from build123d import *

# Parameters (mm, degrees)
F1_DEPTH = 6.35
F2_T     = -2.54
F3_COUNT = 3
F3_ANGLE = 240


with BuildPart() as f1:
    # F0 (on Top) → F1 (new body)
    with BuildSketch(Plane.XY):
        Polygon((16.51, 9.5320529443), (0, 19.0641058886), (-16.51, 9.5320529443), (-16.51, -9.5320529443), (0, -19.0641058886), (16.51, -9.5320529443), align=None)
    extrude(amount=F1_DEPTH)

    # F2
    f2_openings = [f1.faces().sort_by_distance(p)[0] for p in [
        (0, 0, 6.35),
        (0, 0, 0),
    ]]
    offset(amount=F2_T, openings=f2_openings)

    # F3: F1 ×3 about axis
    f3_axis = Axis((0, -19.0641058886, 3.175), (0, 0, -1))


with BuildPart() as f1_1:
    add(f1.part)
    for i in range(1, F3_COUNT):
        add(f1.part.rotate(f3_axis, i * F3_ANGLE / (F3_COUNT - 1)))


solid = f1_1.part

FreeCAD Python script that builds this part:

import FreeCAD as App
import Part
import Sketcher
from FreeCAD import Vector
Q = App.Units.Quantity


def faces_at(feature, points):
    """Names of the faces that lie closest to the given points."""
    faces = feature.Shape.Faces
    near = lambda p: min(range(len(faces)), key=lambda i: faces[i].distToShape(Part.Vertex(*p))[0])
    return sorted({f"Face{near(p) + 1}" for p in points})


def add_polygon(sketch, points):
    """Adds a closed chain of lines whose ends are joined by coincident constraints."""
    first, n = sketch.GeometryCount, len(points)
    for a, b in zip(points, points[1:] + points[:1]):
        sketch.addGeometry(Part.LineSegment(App.Vector(*a, 0), App.Vector(*b, 0)), False)
    for i in range(n):
        sketch.addConstraint(Sketcher.Constraint("Coincident", first + i, 2, first + (i + 1) % n, 1))

doc = App.newDocument("Part")
body = doc.addObject("PartDesign::Body", "Body")

# Sketch on XY plane
sketch1 = doc.addObject("Sketcher::SketchObject", "Sketch")
body.addObject(sketch1)
sketch1.AttachmentSupport = (doc.XY_Plane, [""])
sketch1.MapMode = "FlatFace"
add_polygon(sketch1, [(17, 10), (0, 19), (-17, 10), (-17, -10), (0, -19), (17, -10)])  # lines 0-5
sketch1.addConstraint([
    Sketcher.Constraint("Vertical", 2),
    Sketcher.Constraint("Vertical", 5),
    Sketcher.Constraint("Symmetric", 0, 2, 3, 2, -1, 1),
    Sketcher.Constraint("Symmetric", 1, 2, 4, 2, -1, 1),
    Sketcher.Constraint("PointOnObject", 0, 2, -2),
    Sketcher.Constraint("Parallel", 0, 3),
    Sketcher.Constraint("Horizontal", 2, 2, 4, 2),
    Sketcher.Constraint("Angle", 0, Q("150 deg")),
    Sketcher.Constraint("DistanceX", 2, 2, 4, 2, Q("1.3 in")),
    Sketcher.Constraint("DistanceY", 2, 2, 2, 1, Q("19.064106 mm")),
])
pad1 = doc.addObject("PartDesign::Pad", "Pad")
body.addObject(pad1)
pad1.Profile = sketch1
pad1.Length = Q("0.25 in")
doc.recompute()

thickness = doc.addObject("PartDesign::Thickness", "Thickness")
body.addObject(thickness)
thickness.Base = (pad1, faces_at(pad1, [(0, 0, 6.35), (0, 0, 0)]))
thickness.Value = Q("0.1 in")
thickness.Reversed = True
thickness.Join = "Arc"
body2 = doc.addObject("PartDesign::Body", "Body001")
doc.recompute()

body2.BaseFeature = body
doc.recompute()

body3 = doc.addObject("PartDesign::Body", "Body002")
body3.BaseFeature = body
body3.Placement = App.Placement(Vector(16.51, -28.596159, 0), App.Rotation(Vector(0, 0, -1), 120))
boolean = doc.addObject("PartDesign::Boolean", "Boolean")
body2.addObject(boolean)
boolean.Type = "Fuse"
boolean.addObjects([body3])
doc.recompute()

body.Placement = App.Placement(Vector(-16.51, -28.596159, 0), App.Rotation(Vector(0, 0, -1), 240))
boolean2 = doc.addObject("PartDesign::Boolean", "Boolean001")
body2.addObject(boolean2)
boolean2.Type = "Fuse"
boolean2.addObjects([body])

doc.recompute()
